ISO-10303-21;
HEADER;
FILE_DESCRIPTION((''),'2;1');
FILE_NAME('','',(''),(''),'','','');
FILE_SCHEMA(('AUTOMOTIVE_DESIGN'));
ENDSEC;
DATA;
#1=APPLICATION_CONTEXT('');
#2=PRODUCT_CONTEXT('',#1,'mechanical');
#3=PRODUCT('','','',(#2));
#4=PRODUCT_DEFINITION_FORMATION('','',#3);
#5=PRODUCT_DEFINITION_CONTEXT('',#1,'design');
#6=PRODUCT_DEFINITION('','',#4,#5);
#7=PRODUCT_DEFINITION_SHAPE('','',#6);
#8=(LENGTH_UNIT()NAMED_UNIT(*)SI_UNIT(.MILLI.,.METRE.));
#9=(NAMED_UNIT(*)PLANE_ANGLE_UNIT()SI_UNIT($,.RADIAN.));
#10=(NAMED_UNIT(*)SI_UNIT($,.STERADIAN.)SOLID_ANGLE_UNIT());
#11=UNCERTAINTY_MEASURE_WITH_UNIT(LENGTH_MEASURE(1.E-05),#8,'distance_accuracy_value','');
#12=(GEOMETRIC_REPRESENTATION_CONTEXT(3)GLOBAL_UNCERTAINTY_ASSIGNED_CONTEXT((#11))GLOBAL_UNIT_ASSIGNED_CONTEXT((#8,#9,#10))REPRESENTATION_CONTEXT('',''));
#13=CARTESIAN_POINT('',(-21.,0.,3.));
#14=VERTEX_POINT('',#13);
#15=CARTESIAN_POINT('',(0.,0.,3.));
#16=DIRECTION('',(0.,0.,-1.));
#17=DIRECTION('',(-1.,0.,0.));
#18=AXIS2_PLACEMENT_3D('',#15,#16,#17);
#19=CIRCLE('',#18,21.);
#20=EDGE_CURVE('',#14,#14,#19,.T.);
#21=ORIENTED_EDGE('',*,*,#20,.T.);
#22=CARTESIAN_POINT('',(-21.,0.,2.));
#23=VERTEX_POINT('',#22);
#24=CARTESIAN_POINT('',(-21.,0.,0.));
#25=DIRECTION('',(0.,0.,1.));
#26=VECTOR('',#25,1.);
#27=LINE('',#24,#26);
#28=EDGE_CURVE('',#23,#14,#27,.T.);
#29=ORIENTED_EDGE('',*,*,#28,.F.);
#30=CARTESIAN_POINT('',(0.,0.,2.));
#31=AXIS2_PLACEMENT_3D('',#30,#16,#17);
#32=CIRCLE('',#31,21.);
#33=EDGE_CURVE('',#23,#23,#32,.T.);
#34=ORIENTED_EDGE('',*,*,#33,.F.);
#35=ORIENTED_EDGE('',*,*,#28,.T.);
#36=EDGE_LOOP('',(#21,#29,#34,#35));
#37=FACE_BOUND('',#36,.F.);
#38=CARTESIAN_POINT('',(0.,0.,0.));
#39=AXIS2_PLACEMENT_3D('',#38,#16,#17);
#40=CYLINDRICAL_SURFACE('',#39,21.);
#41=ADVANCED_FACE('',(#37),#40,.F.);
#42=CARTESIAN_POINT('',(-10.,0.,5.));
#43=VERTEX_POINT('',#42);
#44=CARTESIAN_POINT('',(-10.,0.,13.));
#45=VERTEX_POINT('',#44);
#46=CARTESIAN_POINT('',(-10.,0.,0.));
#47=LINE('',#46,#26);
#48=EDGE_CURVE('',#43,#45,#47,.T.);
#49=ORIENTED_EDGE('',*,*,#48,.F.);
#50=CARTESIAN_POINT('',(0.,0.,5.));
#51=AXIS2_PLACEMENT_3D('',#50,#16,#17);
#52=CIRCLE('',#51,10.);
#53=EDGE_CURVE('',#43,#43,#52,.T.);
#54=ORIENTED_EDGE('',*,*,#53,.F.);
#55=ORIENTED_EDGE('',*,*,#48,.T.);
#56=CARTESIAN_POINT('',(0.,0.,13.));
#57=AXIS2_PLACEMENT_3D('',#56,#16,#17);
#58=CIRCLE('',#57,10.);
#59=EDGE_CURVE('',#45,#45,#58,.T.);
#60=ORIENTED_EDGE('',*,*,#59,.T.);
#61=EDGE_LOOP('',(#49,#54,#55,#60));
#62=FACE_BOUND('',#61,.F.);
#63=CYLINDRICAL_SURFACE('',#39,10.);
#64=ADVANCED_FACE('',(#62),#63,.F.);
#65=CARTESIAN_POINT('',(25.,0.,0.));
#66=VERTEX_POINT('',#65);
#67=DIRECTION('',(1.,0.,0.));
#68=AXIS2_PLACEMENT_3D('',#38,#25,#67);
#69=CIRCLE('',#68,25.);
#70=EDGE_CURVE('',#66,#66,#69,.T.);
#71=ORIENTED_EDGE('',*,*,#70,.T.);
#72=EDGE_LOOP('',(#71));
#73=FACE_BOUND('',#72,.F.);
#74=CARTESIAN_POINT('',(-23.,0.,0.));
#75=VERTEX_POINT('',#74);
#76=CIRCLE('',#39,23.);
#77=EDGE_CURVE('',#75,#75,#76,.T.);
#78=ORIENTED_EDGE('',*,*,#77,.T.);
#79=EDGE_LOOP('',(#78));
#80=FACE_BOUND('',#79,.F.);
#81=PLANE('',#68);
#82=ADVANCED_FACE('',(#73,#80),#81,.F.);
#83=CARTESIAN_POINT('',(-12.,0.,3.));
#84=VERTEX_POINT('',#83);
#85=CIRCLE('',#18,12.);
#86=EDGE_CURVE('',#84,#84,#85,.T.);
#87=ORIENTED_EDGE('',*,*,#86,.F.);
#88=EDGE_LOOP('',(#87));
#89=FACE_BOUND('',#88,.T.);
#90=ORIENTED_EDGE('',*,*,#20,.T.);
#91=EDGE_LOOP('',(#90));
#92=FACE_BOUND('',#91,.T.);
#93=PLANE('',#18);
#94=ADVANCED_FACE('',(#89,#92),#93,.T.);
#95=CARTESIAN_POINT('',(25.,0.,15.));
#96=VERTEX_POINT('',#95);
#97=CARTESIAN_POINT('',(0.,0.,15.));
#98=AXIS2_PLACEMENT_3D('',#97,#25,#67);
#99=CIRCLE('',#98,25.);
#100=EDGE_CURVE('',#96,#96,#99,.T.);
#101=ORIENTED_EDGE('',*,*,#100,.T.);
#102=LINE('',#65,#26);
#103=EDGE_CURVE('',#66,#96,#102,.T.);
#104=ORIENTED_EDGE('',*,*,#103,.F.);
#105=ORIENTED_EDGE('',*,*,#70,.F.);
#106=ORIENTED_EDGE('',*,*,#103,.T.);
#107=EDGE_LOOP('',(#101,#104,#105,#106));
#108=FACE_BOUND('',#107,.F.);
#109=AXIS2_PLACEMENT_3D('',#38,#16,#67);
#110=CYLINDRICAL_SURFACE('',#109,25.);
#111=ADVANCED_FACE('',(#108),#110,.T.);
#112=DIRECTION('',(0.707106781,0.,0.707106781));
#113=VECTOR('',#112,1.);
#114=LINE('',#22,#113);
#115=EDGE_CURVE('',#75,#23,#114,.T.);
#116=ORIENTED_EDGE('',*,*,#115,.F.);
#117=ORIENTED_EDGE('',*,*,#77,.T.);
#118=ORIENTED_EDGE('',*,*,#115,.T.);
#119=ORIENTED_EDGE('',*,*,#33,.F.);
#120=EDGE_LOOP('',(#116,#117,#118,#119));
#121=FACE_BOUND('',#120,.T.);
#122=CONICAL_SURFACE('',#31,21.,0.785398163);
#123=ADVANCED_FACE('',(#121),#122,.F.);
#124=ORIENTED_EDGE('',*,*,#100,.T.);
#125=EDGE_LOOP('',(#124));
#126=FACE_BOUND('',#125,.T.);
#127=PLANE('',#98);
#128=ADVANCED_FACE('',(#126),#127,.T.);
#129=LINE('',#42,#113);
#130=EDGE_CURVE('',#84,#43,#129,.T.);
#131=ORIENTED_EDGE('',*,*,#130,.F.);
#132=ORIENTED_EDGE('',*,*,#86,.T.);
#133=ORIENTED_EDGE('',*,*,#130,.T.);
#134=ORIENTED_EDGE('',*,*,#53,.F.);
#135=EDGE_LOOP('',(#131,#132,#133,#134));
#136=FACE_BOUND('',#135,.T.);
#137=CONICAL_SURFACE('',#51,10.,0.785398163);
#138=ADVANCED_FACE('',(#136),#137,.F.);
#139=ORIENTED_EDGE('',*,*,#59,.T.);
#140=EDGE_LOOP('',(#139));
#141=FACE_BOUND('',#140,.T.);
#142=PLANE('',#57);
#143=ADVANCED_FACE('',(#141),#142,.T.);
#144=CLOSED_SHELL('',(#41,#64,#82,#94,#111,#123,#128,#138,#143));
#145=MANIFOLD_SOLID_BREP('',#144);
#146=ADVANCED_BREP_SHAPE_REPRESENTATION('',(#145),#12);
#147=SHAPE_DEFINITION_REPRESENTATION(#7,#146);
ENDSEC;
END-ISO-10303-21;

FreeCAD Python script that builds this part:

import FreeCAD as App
import Part
import Sketcher
Q = App.Units.Quantity


def edges_at(feature, points):
    """Names of the edges that pass closest to the given points."""
    edges = feature.Shape.Edges
    near = lambda p: min(range(len(edges)), key=lambda i: edges[i].distToShape(Part.Vertex(*p))[0])
    return sorted({f"Edge{near(p) + 1}" for p in points})

doc = App.newDocument("Part")
body = doc.addObject("PartDesign::Body", "Body")

# Sketch on XY plane
sketch1 = body.newObject("Sketcher::SketchObject", "Sketch")
sketch1.AttachmentSupport = (doc.getObject("XY_Plane"), [""])
sketch1.MapMode = "FlatFace"
sketch1.addGeometry(Part.Circle(App.Vector(0, 0, 0), App.Vector(0, 0, 1), 25), False)
sketch1.addConstraint([
    Sketcher.Constraint("Coincident", 0, 3, -1, 1),
    Sketcher.Constraint("Diameter", 0, Q("50 mm")),
])
pad1 = body.newObject("PartDesign::Pad", "Pad")
pad1.Profile = sketch1
pad1.Length = 15

# Sketch on XY plane
sketch2 = body.newObject("Sketcher::SketchObject", "Sketch001")
sketch2.AttachmentSupport = (doc.getObject("XY_Plane"), [""])
sketch2.MapMode = "FlatFace"
sketch2.addGeometry(Part.Circle(App.Vector(0, 0, 0), App.Vector(0, 0, 1), 10), False)
sketch2.addConstraint([
    Sketcher.Constraint("Coincident", 0, 3, -1, 1),
    Sketcher.Constraint("Diameter", 0, Q("20 mm")),
])
pocket1 = body.newObject("PartDesign::Pocket", "Pocket")
pocket1.Profile = sketch2
pocket1.Length = 13
pocket1.Reversed = True

# Sketch on XY plane
sketch3 = body.newObject("Sketcher::SketchObject", "Sketch002")
sketch3.AttachmentSupport = (doc.getObject("XY_Plane"), [""])
sketch3.MapMode = "FlatFace"
sketch3.addGeometry([
    Part.Circle(App.Vector(0, 0, 0), App.Vector(0, 0, 1), 21),
    Part.Circle(App.Vector(0, 0, 0), App.Vector(0, 0, 1), 10),
], False)
sketch3.addConstraint([
    Sketcher.Constraint("Coincident", 0, 3, -1, 1),
    Sketcher.Constraint("Coincident", 1, 3, -1, 1),
    Sketcher.Constraint("Diameter", 0, Q("42 mm")),
    Sketcher.Constraint("Diameter", 1, Q("20 mm")),
])
pocket2 = body.newObject("PartDesign::Pocket", "Pocket001")
pocket2.Profile = sketch3
pocket2.Length = 3
pocket2.Reversed = True
doc.recompute()

chamfer = body.newObject("PartDesign::Chamfer", "Chamfer")
chamfer.Base = (pocket2, edges_at(pocket2, [(21, 0, 0)]))
chamfer.Size = 2
doc.recompute()

chamfer2 = body.newObject("PartDesign::Chamfer", "Chamfer001")
chamfer2.Base = (chamfer, edges_at(chamfer, [(10, 0, 3)]))
chamfer2.Size = 2

doc.recompute()
